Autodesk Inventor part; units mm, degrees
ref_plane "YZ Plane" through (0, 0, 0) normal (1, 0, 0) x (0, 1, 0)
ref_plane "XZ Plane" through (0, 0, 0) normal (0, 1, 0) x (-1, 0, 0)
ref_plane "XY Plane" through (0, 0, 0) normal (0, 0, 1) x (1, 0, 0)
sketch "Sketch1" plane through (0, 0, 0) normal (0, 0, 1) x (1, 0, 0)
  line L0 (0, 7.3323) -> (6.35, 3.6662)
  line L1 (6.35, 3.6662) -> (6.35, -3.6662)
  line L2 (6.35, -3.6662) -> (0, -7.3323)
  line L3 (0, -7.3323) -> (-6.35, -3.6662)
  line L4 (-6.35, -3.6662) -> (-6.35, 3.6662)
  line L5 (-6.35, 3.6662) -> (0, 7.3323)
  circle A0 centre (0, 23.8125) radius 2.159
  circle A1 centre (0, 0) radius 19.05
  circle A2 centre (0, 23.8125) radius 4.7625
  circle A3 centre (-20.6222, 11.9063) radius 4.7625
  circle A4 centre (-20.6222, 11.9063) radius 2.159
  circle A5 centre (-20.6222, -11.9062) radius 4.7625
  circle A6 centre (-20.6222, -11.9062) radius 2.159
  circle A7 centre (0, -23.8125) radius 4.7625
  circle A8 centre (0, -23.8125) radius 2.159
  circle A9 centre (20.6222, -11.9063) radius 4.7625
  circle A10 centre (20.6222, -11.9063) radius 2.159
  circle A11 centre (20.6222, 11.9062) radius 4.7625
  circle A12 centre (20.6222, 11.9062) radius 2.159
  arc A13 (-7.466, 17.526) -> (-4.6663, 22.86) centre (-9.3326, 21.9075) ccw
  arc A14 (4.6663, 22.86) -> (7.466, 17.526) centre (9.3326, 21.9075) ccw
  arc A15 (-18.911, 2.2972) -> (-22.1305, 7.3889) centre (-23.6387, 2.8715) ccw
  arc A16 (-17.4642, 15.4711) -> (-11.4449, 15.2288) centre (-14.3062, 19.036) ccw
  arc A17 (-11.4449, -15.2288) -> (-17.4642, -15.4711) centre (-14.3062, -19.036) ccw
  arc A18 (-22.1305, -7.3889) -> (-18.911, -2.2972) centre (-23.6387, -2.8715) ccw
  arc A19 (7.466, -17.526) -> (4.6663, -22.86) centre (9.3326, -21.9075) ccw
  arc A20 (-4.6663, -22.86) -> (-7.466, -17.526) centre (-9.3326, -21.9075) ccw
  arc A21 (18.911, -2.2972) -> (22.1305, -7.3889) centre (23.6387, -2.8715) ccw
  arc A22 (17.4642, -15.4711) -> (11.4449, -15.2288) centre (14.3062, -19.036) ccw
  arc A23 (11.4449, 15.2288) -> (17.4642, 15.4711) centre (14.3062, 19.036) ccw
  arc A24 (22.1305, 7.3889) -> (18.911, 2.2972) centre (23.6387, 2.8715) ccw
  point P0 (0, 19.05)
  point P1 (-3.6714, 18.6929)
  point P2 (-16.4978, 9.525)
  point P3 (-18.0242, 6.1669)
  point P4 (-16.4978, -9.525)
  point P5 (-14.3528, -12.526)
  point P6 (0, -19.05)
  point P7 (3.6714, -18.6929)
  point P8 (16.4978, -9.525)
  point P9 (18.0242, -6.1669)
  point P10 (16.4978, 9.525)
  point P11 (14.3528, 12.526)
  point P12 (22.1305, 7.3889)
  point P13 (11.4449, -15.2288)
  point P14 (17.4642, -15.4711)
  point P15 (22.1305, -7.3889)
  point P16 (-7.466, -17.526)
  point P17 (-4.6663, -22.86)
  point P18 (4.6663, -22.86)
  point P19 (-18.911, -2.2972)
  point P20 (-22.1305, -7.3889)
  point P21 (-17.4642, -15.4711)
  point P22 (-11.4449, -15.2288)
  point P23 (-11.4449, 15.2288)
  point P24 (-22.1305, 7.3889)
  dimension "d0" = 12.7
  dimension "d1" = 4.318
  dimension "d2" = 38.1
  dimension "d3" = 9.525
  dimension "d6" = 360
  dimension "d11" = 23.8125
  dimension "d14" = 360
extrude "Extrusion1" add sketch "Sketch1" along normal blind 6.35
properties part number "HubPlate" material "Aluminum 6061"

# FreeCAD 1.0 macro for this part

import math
import FreeCAD as App
import Part
import Sketcher
from FreeCAD import Vector
Q = App.Units.Quantity

doc = App.newDocument("Part")
params = doc.addObject("Spreadsheet::Sheet", "Params")
for row, (alias, value) in enumerate([
    ("sketch1_diameter", "0.17 in"),
    ("sketch1_radius", "0.75 in"),
    ("sketch1_radius2", "0.1875 in"),
    ("pad1_length", "0.25 in"),
], start=1):
    params.set(f"A{row}", alias)
    params.set(f"B{row}", "=" + value)
    params.setAlias(f"B{row}", alias)

body = doc.addObject("PartDesign::Body", "Body")

sketch1 = body.newObject("Sketcher::SketchObject", "Sketch")
sketch1.AttachmentSupport = (doc.getObject("XY_Plane"), [""])
sketch1.MapMode = "FlatFace"
sketch1.addGeometry([
    Part.ArcOfCircle(Part.Circle(Vector(0, 0, 0), Vector(0, 0, 1), 19.1), math.radians(-6.93), math.radians(6.93)),
    Part.ArcOfCircle(Part.Circle(Vector(23.6, 2.9, 0), Vector(0, 0, 1), 4.8), math.radians(108), math.radians(187)),
    Part.ArcOfCircle(Part.Circle(Vector(20.6, 11.9, 0), Vector(0, 0, 1), 4.8), math.radians(-72), math.radians(132)),
    Part.ArcOfCircle(Part.Circle(Vector(14.3, 19, 0), Vector(0, 0, 1), 4.8), math.radians(-127), math.radians(-48)),
    Part.ArcOfCircle(Part.Circle(Vector(0, 0, 0), Vector(0, 0, 1), 19.1), math.radians(53.07), math.radians(66.93)),
    Part.ArcOfCircle(Part.Circle(Vector(9.3, 21.9, 0), Vector(0, 0, 1), 4.8), math.radians(168), math.radians(247)),
    Part.ArcOfCircle(Part.Circle(Vector(0, 23.8, 0), Vector(0, 0, 1), 4.8), math.radians(-12), math.radians(192)),
    Part.ArcOfCircle(Part.Circle(Vector(-9.3, 21.9, 0), Vector(0, 0, 1), 4.8), math.radians(-67), math.radians(12)),
    Part.ArcOfCircle(Part.Circle(Vector(0, 0, 0), Vector(0, 0, 1), 19.1), math.radians(113.07), math.radians(126.93)),
    Part.ArcOfCircle(Part.Circle(Vector(-14.3, 19, 0), Vector(0, 0, 1), 4.8), math.radians(-132), math.radians(-53)),
    Part.ArcOfCircle(Part.Circle(Vector(-20.6, 11.9, 0), Vector(0, 0, 1), 4.8), math.radians(48), math.radians(252)),
    Part.ArcOfCircle(Part.Circle(Vector(-23.6, 2.9, 0), Vector(0, 0, 1), 4.8), math.radians(-7), math.radians(72)),
    Part.ArcOfCircle(Part.Circle(Vector(0, 0, 0), Vector(0, 0, 1), 19.1), math.radians(173.07), math.radians(186.93)),
    Part.ArcOfCircle(Part.Circle(Vector(-23.6, -2.9, 0), Vector(0, 0, 1), 4.8), math.radians(-72), math.radians(7)),
    Part.ArcOfCircle(Part.Circle(Vector(-20.6, -11.9, 0), Vector(0, 0, 1), 4.8), math.radians(108), math.radians(312)),
    Part.ArcOfCircle(Part.Circle(Vector(-14.3, -19, 0), Vector(0, 0, 1), 4.8), math.radians(53), math.radians(132)),
    Part.ArcOfCircle(Part.Circle(Vector(0, 0, 0), Vector(0, 0, 1), 19.1), math.radians(-126.93), math.radians(-113.07)),
    Part.ArcOfCircle(Part.Circle(Vector(-9.3, -21.9, 0), Vector(0, 0, 1), 4.8), math.radians(-12), math.radians(67)),
    Part.ArcOfCircle(Part.Circle(Vector(0, -23.8, 0), Vector(0, 0, 1), 4.8), math.radians(168), math.radians(372)),
    Part.ArcOfCircle(Part.Circle(Vector(9.3, -21.9, 0), Vector(0, 0, 1), 4.8), math.radians(113), math.radians(192)),
    Part.ArcOfCircle(Part.Circle(Vector(0, 0, 0), Vector(0, 0, 1), 19.1), math.radians(-66.93), math.radians(-53.07)),
    Part.ArcOfCircle(Part.Circle(Vector(14.3, -19, 0), Vector(0, 0, 1), 4.8), math.radians(48), math.radians(127)),
    Part.ArcOfCircle(Part.Circle(Vector(20.6, -11.9, 0), Vector(0, 0, 1), 4.8), math.radians(-132), math.radians(72)),
    Part.ArcOfCircle(Part.Circle(Vector(23.6, -2.9, 0), Vector(0, 0, 1), 4.8), math.radians(173), math.radians(252)),
    Part.LineSegment(Vector(-6.3, 3.7, 0), Vector(0, 7.3, 0)),
    Part.LineSegment(Vector(0, 7.3, 0), Vector(6.3, 3.7, 0)),
    Part.LineSegment(Vector(6.3, 3.7, 0), Vector(6.3, -3.7, 0)),
    Part.LineSegment(Vector(6.3, -3.7, 0), Vector(0, -7.3, 0)),
    Part.LineSegment(Vector(0, -7.3, 0), Vector(-6.3, -3.7, 0)),
    Part.LineSegment(Vector(-6.3, -3.7, 0), Vector(-6.3, 3.7, 0)),
    Part.Circle(Vector(20.6, -11.9, 0), Vector(0, 0, 1), 2.2),
    Part.Circle(Vector(0, -23.8, 0), Vector(0, 0, 1), 2.2),
    Part.Circle(Vector(-20.6, -11.9, 0), Vector(0, 0, 1), 2.2),
    Part.Circle(Vector(-20.6, 11.9, 0), Vector(0, 0, 1), 2.2),
    Part.Circle(Vector(0, 23.8, 0), Vector(0, 0, 1), 2.2),
    Part.Circle(Vector(20.6, 11.9, 0), Vector(0, 0, 1), 2.2),
], False)
sketch1.addConstraint([
    Sketcher.Constraint("Tangent", 0, 2, 1, 2),
    Sketcher.Constraint("Tangent", 1, 1, 2, 1),
    Sketcher.Constraint("Tangent", 2, 2, 3, 2),
    Sketcher.Constraint("Tangent", 3, 1, 4, 1),
    Sketcher.Constraint("Tangent", 4, 2, 5, 2),
    Sketcher.Constraint("Tangent", 5, 1, 6, 1),
    Sketcher.Constraint("Tangent", 6, 2, 7, 2),
    Sketcher.Constraint("Tangent", 7, 1, 8, 1),
    Sketcher.Constraint("Tangent", 8, 2, 9, 2),
    Sketcher.Constraint("Tangent", 9, 1, 10, 1),
    Sketcher.Constraint("Tangent", 10, 2, 11, 2),
    Sketcher.Constraint("Tangent", 11, 1, 12, 1),
    Sketcher.Constraint("Tangent", 12, 2, 13, 2),
    Sketcher.Constraint("Tangent", 13, 1, 14, 1),
    Sketcher.Constraint("Tangent", 14, 2, 15, 2),
    Sketcher.Constraint("Tangent", 15, 1, 16, 1),
    Sketcher.Constraint("Tangent", 16, 2, 17, 2),
    Sketcher.Constraint("Tangent", 17, 1, 18, 1),
    Sketcher.Constraint("Tangent", 18, 2, 19, 2),
    Sketcher.Constraint("Tangent", 19, 1, 20, 1),
    Sketcher.Constraint("Tangent", 20, 2, 21, 2),
    Sketcher.Constraint("Tangent", 21, 1, 22, 1),
    Sketcher.Constraint("Tangent", 22, 2, 23, 2),
    Sketcher.Constraint("Tangent", 23, 1, 0, 1),
    Sketcher.Constraint("Coincident", 24, 2, 25, 1),
    Sketcher.Constraint("Coincident", 25, 2, 26, 1),
    Sketcher.Constraint("Coincident", 26, 2, 27, 1),
    Sketcher.Constraint("Coincident", 27, 2, 28, 1),
    Sketcher.Constraint("Coincident", 28, 2, 29, 1),
    Sketcher.Constraint("Coincident", 29, 2, 24, 1),
    Sketcher.Constraint("Vertical", 26),
    Sketcher.Constraint("Vertical", 29),
    Sketcher.Constraint("Coincident", 0, 3, -1, 1),
    Sketcher.Constraint("Coincident", 4, 3, -1, 1),
    Sketcher.Constraint("Coincident", 8, 3, -1, 1),
    Sketcher.Constraint("Coincident", 12, 3, -1, 1),
    Sketcher.Constraint("Coincident", 16, 3, -1, 1),
    Sketcher.Constraint("Coincident", 20, 3, -1, 1),
    Sketcher.Constraint("Coincident", 30, 3, 22, 3),
    Sketcher.Constraint("Coincident", 31, 3, 18, 3),
    Sketcher.Constraint("Coincident", 32, 3, 14, 3),
    Sketcher.Constraint("Coincident", 33, 3, 10, 3),
    Sketcher.Constraint("Coincident", 34, 3, 6, 3),
    Sketcher.Constraint("Coincident", 35, 3, 2, 3),
    Sketcher.Constraint("Equal", 1, 2),
    Sketcher.Constraint("Equal", 2, 3),
    Sketcher.Constraint("Equal", 0, 4),
    Sketcher.Constraint("Equal", 3, 5),
    Sketcher.Constraint("Equal", 5, 6),
    Sketcher.Constraint("Equal", 6, 7),
    Sketcher.Constraint("Equal", 4, 8),
    Sketcher.Constraint("Equal", 7, 9),
    Sketcher.Constraint("Equal", 9, 10),
    Sketcher.Constraint("Equal", 10, 11),
    Sketcher.Constraint("Equal", 8, 12),
    Sketcher.Constraint("Equal", 11, 13),
    Sketcher.Constraint("Equal", 13, 14),
    Sketcher.Constraint("Equal", 14, 15),
    Sketcher.Constraint("Equal", 12, 16),
    Sketcher.Constraint("Equal", 15, 17),
    Sketcher.Constraint("Equal", 17, 18),
    Sketcher.Constraint("Equal", 18, 19),
    Sketcher.Constraint("Equal", 16, 20),
    Sketcher.Constraint("Equal", 19, 21),
    Sketcher.Constraint("Equal", 21, 22),
    Sketcher.Constraint("Equal", 22, 23),
    Sketcher.Constraint("Equal", 30, 31),
    Sketcher.Constraint("Equal", 31, 32),
    Sketcher.Constraint("Equal", 32, 33),
    Sketcher.Constraint("Equal", 33, 34),
    Sketcher.Constraint("Equal", 34, 35),
    Sketcher.Constraint("Symmetric", 2, 3, 14, 3, -1, 1),
    Sketcher.Constraint("Symmetric", 6, 3, 18, 3, -1, 1),
    Sketcher.Constraint("Symmetric", 10, 3, 22, 3, -1, 1),
    Sketcher.Constraint("Symmetric", 24, 2, 27, 2, -1, 1),
    Sketcher.Constraint("Symmetric", 25, 2, 28, 2, -1, 1),
    Sketcher.Constraint("Symmetric", 2, 3, 10, 3, -2),
    Sketcher.Constraint("PointOnObject", 6, 3, -2),
    Sketcher.Constraint("PointOnObject", 24, 2, -2),
    Sketcher.Constraint("Parallel", 24, 27),
    Sketcher.Constraint("Horizontal", 26, 2, 28, 2),
    Sketcher.Constraint("Diameter", 30, Q("0.17 in")),
    Sketcher.Constraint("Radius", 0, Q("0.75 in")),
    Sketcher.Constraint("Radius", 1, Q("0.1875 in")),
    Sketcher.Constraint("DistanceY", -1, 1, 6, 3, Q("0.9375 in")),
    Sketcher.Constraint("Angle", 24, Q("29.9995 deg")),
    Sketcher.Constraint("DistanceX", -1, 1, 25, 2, Q("0.25 in")),
    Sketcher.Constraint("DistanceY", -1, 1, 2, 3, Q("0.468748 in")),
    Sketcher.Constraint("DistanceY", 26, 2, 26, 1, Q("7.3324 mm")),
    Sketcher.Constraint("DistanceX", -1, 1, 2, 3, Q("0.8119 in")),
])
sketch1.setExpression("Constraints[81]", "Params.sketch1_diameter")
sketch1.setExpression("Constraints[82]", "Params.sketch1_radius")
sketch1.setExpression("Constraints[83]", "Params.sketch1_radius2")
pad1 = body.newObject("PartDesign::Pad", "Pad")
pad1.Profile = sketch1
pad1.setExpression("Length", "Params.pad1_length")

doc.recompute()
